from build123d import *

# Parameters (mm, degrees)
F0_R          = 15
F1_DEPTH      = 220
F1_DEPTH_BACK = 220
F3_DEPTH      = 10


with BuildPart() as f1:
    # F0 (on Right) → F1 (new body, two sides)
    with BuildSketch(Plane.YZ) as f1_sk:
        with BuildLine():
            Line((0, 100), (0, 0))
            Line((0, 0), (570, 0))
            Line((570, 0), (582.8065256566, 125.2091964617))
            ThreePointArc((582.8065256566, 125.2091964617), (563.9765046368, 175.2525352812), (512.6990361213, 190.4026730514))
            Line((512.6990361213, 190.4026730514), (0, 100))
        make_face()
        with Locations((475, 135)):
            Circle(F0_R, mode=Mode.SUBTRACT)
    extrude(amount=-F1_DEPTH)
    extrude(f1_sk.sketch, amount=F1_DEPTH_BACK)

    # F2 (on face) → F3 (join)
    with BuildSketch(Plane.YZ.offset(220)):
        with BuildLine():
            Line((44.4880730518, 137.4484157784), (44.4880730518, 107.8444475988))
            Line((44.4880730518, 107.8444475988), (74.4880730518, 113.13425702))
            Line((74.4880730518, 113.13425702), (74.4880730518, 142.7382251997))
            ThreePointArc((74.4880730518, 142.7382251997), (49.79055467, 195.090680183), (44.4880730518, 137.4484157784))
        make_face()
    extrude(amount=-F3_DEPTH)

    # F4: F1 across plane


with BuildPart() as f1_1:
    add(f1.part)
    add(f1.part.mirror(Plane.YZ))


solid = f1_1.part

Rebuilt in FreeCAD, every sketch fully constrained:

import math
import FreeCAD as App
import Part
import Sketcher

V = App.Vector
Q = App.Units.Quantity

doc = App.newDocument("Part")
params = doc.addObject("Spreadsheet::Sheet", "Params")
for row, (alias, value) in enumerate([
    ("sketch1_diameter", "30 mm"),
    ("sketch1_radius", "60 mm"),
    ("sketch1_width", "570 mm"),
    ("sketch1_height", "100 mm"),
    ("pad1_length", "220 mm"),
    ("pad1_length2", "220 mm"),
    ("sketch2_radius", "30 mm"),
    ("pad2_length", "10 mm"),
], start=1):
    params.set(f"A{row}", alias)
    params.set(f"B{row}", "=" + value)
    params.setAlias(f"B{row}", alias)

body = doc.addObject("PartDesign::Body", "Body")

sketch1 = body.newObject("Sketcher::SketchObject", "Sketch")
sketch1.AttachmentSupport = (doc.getObject("YZ_Plane"), [""])
sketch1.MapMode = "FlatFace"
sketch1.addGeometry(Part.LineSegment(V(0, 100, 0), V(0, 0, 0)), False)
sketch1.addGeometry(Part.LineSegment(V(0, 0, 0), V(570, 0, 0)), False)
sketch1.addGeometry(Part.LineSegment(V(570, 0, 0), V(583, 125, 0)), False)
sketch1.addGeometry(Part.ArcOfCircle(Part.Circle(V(523, 131, 0), V(0, 0, 1), 60), math.radians(-6), math.radians(100)), False)
sketch1.addGeometry(Part.LineSegment(V(513, 190, 0), V(0, 100, 0)), False)
sketch1.addGeometry(Part.Circle(V(475, 135, 0), V(0, 0, 1), 15), False)
sketch1.addConstraint(Sketcher.Constraint("Coincident", 0, 2, 1, 1))
sketch1.addConstraint(Sketcher.Constraint("Coincident", 1, 2, 2, 1))
sketch1.addConstraint(Sketcher.Constraint("Tangent", 2, 2, 3, 1))
sketch1.addConstraint(Sketcher.Constraint("Tangent", 3, 2, 4, 1))
sketch1.addConstraint(Sketcher.Constraint("Coincident", 4, 2, 0, 1))
sketch1.addConstraint(Sketcher.Constraint("Vertical", 0))
sketch1.addConstraint(Sketcher.Constraint("Horizontal", 1))
sketch1.addConstraint(Sketcher.Constraint("Coincident", 0, 2, -1, 1))
sketch1.addConstraint(Sketcher.Constraint("Diameter", 5, 30.0))
sketch1.addConstraint(Sketcher.Constraint("Radius", 3, 60.0))
sketch1.addConstraint(Sketcher.Constraint("DistanceX", 1, 1, 1, 2, 570.0))
sketch1.addConstraint(Sketcher.Constraint("DistanceY", 0, 2, 0, 1, 100.0))
sketch1.addConstraint(Sketcher.Constraint("Angle", 4, Q("-170 deg")))
sketch1.addConstraint(Sketcher.Constraint("DistanceX", -1, 1, 5, 3, 475.0))
sketch1.addConstraint(Sketcher.Constraint("DistanceY", -1, 1, 5, 3, 135.0))
sketch1.addConstraint(Sketcher.Constraint("DistanceX", 3, 3, 2, 2, 59.688599))
sketch1.setExpression("Constraints[8]", "Params.sketch1_diameter")
sketch1.setExpression("Constraints[9]", "Params.sketch1_radius")
sketch1.setExpression("Constraints[10]", "Params.sketch1_width")
sketch1.setExpression("Constraints[11]", "Params.sketch1_height")
pad1 = body.newObject("PartDesign::Pad", "Pad")
pad1.Profile = sketch1
pad1.Type = "TwoLengths"
pad1.setExpression("Length", "Params.pad1_length")
pad1.setExpression("Length2", "Params.pad1_length2")
pad1.Reversed = True

sketch2 = body.newObject("Sketcher::SketchObject", "Sketch001")
sketch2.AttachmentSupport = (doc.getObject("YZ_Plane"), [""])
sketch2.MapMode = "FlatFace"
sketch2.AttachmentOffset = App.Placement(V(0, 0, 220), App.Rotation())
sketch2.addGeometry(Part.LineSegment(V(44, 137, 0), V(44, 108, 0)), False)
sketch2.addGeometry(Part.LineSegment(V(44, 108, 0), V(74, 113, 0)), False)
sketch2.addGeometry(Part.LineSegment(V(74, 113, 0), V(74, 143, 0)), False)
sketch2.addGeometry(Part.ArcOfCircle(Part.Circle(V(55, 166, 0), V(0, 0, 1), 30), math.radians(-49), math.radians(249)), False)
sketch2.addConstraint(Sketcher.Constraint("Coincident", 0, 2, 1, 1))
sketch2.addConstraint(Sketcher.Constraint("Coincident", 1, 2, 2, 1))
sketch2.addConstraint(Sketcher.Constraint("Coincident", 2, 2, 3, 1))
sketch2.addConstraint(Sketcher.Constraint("Coincident", 3, 2, 0, 1))
sketch2.addConstraint(Sketcher.Constraint("Vertical", 0))
sketch2.addConstraint(Sketcher.Constraint("Vertical", 2))
sketch2.addConstraint(Sketcher.Constraint("Equal", 0, 2))
sketch2.addConstraint(Sketcher.Constraint("Radius", 3, 30.0))
sketch2.addConstraint(Sketcher.Constraint("Angle", 1, Q("10 deg")))
sketch2.addConstraint(Sketcher.Constraint("DistanceX", -1, 1, 3, 3, 55.0))
sketch2.addConstraint(Sketcher.Constraint("DistanceX", 0, 2, 1, 2, 30.0))
sketch2.addConstraint(Sketcher.Constraint("DistanceY", 0, 2, 3, 3, 57.702))
sketch2.addConstraint(Sketcher.Constraint("DistanceY", -1, 1, 3, 3, 165.546448))
sketch2.setExpression("Constraints[7]", "Params.sketch2_radius")
pad2 = body.newObject("PartDesign::Pad", "Pad001")
pad2.Profile = sketch2
pad2.setExpression("Length", "Params.pad2_length")
pad2.Reversed = True
body2 = doc.addObject("PartDesign::Body", "Body001")
doc.recompute()

body2.BaseFeature = body
doc.recompute()

mirroring = doc.addObject("Part::Mirroring", "Mirroring")
mirroring.Source = body
mirroring.Base = V(0, 0, 0)
mirroring.Normal = V(1, 0, 0)
body3 = doc.addObject("PartDesign::Body", "Body002")
body3.BaseFeature = mirroring
boolean = body2.newObject("PartDesign::Boolean", "Boolean")
boolean.Type = "Fuse"
boolean.addObjects([body3])
doc.recompute()
mirroring.Visibility = False

doc.recompute()
